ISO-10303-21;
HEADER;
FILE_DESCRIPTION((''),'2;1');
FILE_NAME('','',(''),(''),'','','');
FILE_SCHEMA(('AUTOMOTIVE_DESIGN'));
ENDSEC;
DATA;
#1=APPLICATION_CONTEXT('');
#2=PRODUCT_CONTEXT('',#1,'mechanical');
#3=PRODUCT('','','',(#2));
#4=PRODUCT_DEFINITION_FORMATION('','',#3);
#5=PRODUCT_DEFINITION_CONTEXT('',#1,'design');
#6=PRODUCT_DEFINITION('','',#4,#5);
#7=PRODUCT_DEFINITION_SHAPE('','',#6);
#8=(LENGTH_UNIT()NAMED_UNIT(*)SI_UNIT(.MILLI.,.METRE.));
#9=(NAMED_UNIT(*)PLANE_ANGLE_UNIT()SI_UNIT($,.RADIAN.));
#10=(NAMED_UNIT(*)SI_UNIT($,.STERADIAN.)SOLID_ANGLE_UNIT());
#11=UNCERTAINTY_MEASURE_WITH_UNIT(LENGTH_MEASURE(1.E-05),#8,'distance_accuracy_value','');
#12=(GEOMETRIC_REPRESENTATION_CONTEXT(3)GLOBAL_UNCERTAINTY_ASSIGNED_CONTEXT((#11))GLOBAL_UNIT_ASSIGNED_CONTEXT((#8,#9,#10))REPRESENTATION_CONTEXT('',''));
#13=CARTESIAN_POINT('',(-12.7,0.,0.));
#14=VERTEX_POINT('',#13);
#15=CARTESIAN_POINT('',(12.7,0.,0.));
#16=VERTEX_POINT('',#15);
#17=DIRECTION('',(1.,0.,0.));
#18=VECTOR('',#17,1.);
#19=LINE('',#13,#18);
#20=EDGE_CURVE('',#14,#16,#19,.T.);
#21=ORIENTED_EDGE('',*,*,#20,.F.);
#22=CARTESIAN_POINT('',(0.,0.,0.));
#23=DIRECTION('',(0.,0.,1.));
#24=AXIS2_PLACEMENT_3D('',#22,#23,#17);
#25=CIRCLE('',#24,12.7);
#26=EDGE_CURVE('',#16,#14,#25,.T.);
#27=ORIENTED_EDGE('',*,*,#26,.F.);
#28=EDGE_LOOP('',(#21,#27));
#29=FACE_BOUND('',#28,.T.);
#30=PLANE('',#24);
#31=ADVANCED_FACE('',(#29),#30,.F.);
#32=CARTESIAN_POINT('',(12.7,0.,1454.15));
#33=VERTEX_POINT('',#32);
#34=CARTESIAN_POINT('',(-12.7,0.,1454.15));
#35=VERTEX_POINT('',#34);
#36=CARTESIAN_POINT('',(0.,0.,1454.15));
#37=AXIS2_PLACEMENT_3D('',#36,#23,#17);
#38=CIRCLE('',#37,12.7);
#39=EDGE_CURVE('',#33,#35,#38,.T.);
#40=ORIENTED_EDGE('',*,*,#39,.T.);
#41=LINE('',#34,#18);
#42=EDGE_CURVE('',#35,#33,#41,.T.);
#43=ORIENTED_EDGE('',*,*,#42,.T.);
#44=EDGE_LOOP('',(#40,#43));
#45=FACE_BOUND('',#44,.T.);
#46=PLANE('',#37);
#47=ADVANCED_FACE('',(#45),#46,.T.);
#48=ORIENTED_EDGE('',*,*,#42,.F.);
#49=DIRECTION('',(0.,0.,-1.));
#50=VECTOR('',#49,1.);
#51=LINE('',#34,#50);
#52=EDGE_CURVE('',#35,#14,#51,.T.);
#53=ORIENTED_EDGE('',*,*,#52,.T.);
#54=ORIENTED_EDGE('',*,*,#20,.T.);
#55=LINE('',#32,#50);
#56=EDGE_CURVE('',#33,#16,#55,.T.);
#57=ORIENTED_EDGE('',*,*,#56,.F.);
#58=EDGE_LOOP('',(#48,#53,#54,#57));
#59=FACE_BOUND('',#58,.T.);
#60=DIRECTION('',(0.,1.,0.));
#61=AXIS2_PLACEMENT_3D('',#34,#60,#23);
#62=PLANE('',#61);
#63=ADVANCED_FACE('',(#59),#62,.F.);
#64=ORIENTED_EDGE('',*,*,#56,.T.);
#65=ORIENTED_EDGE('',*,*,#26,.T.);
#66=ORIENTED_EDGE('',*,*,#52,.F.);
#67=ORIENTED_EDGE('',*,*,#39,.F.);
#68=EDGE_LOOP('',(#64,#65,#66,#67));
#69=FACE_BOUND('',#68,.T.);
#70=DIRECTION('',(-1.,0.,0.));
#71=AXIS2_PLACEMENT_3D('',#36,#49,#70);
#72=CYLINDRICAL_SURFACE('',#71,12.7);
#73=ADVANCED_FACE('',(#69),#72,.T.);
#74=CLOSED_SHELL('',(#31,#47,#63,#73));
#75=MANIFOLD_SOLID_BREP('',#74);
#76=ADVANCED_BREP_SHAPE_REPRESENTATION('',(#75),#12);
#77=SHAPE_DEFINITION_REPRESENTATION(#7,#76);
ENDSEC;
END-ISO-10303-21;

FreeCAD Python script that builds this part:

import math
import FreeCAD as App
import Part
import Sketcher
Q = App.Units.Quantity

doc = App.newDocument("Part")
body = doc.addObject("PartDesign::Body", "Body")

# Sketch on XY plane
sketch1 = doc.addObject("Sketcher::SketchObject", "Sketch")
body.addObject(sketch1)
sketch1.AttachmentSupport = (doc.XY_Plane, [""])
sketch1.MapMode = "FlatFace"
sketch1.addGeometry(Part.LineSegment(App.Vector(-13, 0, 0), App.Vector(13, 0, 0)), False)
sketch1.addGeometry(Part.ArcOfCircle(Part.Circle(App.Vector(0, 0, 0), App.Vector(0, 0, 1), 13), math.radians(0), math.radians(180)), False)
sketch1.addConstraint(Sketcher.Constraint("Coincident", 0, 1, 1, 2))
sketch1.addConstraint(Sketcher.Constraint("Coincident", 1, 1, 0, 2))
sketch1.addConstraint(Sketcher.Constraint("Horizontal", 0))
sketch1.addConstraint(Sketcher.Constraint("Coincident", 1, 3, -1, 1))
sketch1.addConstraint(Sketcher.Constraint("PointOnObject", 0, 1, -1))
sketch1.addConstraint(Sketcher.Constraint("Radius", 1, Q("0.5 in")))
pad1 = doc.addObject("PartDesign::Pad", "Pad")
body.addObject(pad1)
pad1.Profile = sketch1
pad1.Length = Q("57.25 in")

doc.recompute()
